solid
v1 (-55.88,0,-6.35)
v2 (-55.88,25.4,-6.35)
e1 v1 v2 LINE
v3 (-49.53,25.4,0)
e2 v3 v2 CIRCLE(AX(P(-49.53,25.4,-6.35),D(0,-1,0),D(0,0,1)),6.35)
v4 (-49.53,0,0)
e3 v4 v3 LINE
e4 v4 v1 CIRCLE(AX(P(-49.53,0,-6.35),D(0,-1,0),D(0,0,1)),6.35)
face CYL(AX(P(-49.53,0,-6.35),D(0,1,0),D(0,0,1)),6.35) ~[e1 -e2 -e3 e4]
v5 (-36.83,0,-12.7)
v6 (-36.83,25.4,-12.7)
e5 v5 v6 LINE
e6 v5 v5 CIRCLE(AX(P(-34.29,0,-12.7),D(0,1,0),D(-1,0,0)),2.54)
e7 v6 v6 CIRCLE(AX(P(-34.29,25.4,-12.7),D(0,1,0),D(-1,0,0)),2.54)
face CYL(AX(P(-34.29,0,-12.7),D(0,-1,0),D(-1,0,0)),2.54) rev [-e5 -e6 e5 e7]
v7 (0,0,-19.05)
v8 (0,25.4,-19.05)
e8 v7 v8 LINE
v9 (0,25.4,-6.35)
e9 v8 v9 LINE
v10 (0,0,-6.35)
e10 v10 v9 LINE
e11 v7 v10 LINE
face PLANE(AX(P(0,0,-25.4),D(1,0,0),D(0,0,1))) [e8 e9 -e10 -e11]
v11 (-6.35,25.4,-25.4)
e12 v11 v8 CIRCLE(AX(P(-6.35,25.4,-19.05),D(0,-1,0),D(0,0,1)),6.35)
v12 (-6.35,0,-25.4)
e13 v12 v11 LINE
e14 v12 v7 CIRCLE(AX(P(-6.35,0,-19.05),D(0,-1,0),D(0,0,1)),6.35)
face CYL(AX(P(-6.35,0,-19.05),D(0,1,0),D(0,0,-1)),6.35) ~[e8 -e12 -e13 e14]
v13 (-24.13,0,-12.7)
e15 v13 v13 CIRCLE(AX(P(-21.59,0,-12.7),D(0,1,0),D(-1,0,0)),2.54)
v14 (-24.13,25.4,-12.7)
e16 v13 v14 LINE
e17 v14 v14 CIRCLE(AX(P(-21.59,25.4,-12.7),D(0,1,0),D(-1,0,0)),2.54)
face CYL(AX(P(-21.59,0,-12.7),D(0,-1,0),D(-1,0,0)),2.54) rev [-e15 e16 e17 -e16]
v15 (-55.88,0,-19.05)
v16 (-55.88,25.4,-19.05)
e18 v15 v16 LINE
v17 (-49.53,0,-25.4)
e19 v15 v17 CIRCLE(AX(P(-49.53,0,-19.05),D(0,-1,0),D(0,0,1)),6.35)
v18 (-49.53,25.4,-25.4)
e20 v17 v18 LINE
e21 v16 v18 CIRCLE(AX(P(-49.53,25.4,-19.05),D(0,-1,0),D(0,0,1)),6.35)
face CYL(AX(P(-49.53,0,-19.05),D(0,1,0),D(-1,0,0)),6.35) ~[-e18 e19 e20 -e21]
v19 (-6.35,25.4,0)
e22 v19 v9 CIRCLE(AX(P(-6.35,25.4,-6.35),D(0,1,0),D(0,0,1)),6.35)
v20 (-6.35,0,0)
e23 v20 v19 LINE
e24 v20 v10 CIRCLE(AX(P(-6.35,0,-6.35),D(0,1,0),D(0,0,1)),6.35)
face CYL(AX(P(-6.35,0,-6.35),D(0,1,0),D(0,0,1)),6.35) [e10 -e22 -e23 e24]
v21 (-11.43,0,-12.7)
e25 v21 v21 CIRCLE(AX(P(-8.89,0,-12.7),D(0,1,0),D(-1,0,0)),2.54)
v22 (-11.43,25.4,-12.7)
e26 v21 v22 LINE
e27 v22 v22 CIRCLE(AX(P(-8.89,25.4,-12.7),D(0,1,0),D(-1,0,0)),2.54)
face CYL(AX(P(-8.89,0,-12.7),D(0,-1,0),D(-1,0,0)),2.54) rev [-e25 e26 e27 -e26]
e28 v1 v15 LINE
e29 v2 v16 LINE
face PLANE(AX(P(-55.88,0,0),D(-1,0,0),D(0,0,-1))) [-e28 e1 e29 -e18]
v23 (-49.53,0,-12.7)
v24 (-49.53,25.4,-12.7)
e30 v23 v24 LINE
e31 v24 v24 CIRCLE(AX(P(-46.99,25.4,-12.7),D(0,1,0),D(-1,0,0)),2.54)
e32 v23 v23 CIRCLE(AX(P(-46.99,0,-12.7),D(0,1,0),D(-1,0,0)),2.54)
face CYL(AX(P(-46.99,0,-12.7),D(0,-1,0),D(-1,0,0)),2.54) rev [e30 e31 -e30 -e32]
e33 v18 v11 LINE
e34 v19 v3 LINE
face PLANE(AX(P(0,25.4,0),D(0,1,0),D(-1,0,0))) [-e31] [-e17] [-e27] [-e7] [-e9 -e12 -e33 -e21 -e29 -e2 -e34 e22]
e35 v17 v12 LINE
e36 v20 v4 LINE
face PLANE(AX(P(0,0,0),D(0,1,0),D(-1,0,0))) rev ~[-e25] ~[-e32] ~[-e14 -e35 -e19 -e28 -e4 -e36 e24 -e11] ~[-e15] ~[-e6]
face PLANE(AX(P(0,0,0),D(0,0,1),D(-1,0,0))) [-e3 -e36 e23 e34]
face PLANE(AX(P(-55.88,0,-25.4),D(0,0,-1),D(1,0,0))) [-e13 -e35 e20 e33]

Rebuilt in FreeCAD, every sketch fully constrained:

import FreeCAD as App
import Part
import Sketcher
from FreeCAD import Vector
Q = App.Units.Quantity


def edges_at(feature, points):
    """Names of the edges that pass closest to the given points."""
    edges = feature.Shape.Edges
    near = lambda p: min(range(len(edges)), key=lambda i: edges[i].distToShape(Part.Vertex(*p))[0])
    return sorted({f"Edge{near(p) + 1}" for p in points})


def add_polygon(sketch, points):
    """Adds a closed chain of lines whose ends are joined by coincident constraints."""
    first, n = sketch.GeometryCount, len(points)
    for a, b in zip(points, points[1:] + points[:1]):
        sketch.addGeometry(Part.LineSegment(App.Vector(*a, 0), App.Vector(*b, 0)), False)
    for i in range(n):
        sketch.addConstraint(Sketcher.Constraint("Coincident", first + i, 2, first + (i + 1) % n, 1))

doc = App.newDocument("Part")
body = doc.addObject("PartDesign::Body", "Body")

sketch1 = body.newObject("Sketcher::SketchObject", "Sketch")
sketch1.AttachmentSupport = (doc.getObject("XZ_Plane"), [""])
sketch1.MapMode = "FlatFace"
add_polygon(sketch1, [(-55.9, 0), (0, 0), (0, -25.4), (-55.9, -25.4)])
sketch1.addGeometry(Part.Circle(Vector(-8.9, -12.7, 0), Vector(0, 0, 1), 2.5), False)
sketch1.addGeometry(Part.Circle(Vector(-21.6, -12.7, 0), Vector(0, 0, 1), 2.5), False)
sketch1.addGeometry(Part.Circle(Vector(-34.3, -12.7, 0), Vector(0, 0, 1), 2.5), False)
sketch1.addGeometry(Part.Circle(Vector(-47, -12.7, 0), Vector(0, 0, 1), 2.5), False)
sketch1.addConstraint(Sketcher.Constraint("Horizontal", 0))
sketch1.addConstraint(Sketcher.Constraint("Vertical", 1))
sketch1.addConstraint(Sketcher.Constraint("Horizontal", 2))
sketch1.addConstraint(Sketcher.Constraint("Vertical", 3))
sketch1.addConstraint(Sketcher.Constraint("Coincident", 0, 2, -1, 1))
sketch1.addConstraint(Sketcher.Constraint("Equal", 4, 5))
sketch1.addConstraint(Sketcher.Constraint("Equal", 5, 6))
sketch1.addConstraint(Sketcher.Constraint("Equal", 6, 7))
sketch1.addConstraint(Sketcher.Constraint("Horizontal", 4, 3, 5, 3))
sketch1.addConstraint(Sketcher.Constraint("Horizontal", 5, 3, 6, 3))
sketch1.addConstraint(Sketcher.Constraint("Horizontal", 6, 3, 7, 3))
sketch1.addConstraint(Sketcher.Constraint("Diameter", 4, Q("0.2 in")))
sketch1.addConstraint(Sketcher.Constraint("DistanceY", 1, 2, 1, 1, Q("1 in")))
sketch1.addConstraint(Sketcher.Constraint("DistanceX", 0, 1, 0, 2, Q("2.2 in")))
sketch1.addConstraint(Sketcher.Constraint("DistanceX", 6, 3, 4, 3, Q("1 in")))
sketch1.addConstraint(Sketcher.Constraint("DistanceX", 7, 3, 5, 3, Q("1 in")))
sketch1.addConstraint(Sketcher.Constraint("DistanceY", 4, 3, -1, 1, Q("0.5 in")))
sketch1.addConstraint(Sketcher.Constraint("DistanceX", 5, 3, 4, 3, Q("0.5 in")))
sketch1.addConstraint(Sketcher.Constraint("DistanceX", 4, 3, -1, 1, Q("0.35 in")))
pad1 = body.newObject("PartDesign::Pad", "Pad")
pad1.Profile = sketch1
pad1.Length = Q("1 in")
pad1.Reversed = True
doc.recompute()

fillet = body.newObject("PartDesign::Fillet", "Fillet")
fillet.Base = (pad1, edges_at(pad1, [
    (-55.88, 12.7, 0),
    (-55.88, 12.7, -25.4),
    (0, 12.7, -25.4),
    (0, 12.7, 0),
]))
fillet.Radius = Q("0.25 in")

doc.recompute()
